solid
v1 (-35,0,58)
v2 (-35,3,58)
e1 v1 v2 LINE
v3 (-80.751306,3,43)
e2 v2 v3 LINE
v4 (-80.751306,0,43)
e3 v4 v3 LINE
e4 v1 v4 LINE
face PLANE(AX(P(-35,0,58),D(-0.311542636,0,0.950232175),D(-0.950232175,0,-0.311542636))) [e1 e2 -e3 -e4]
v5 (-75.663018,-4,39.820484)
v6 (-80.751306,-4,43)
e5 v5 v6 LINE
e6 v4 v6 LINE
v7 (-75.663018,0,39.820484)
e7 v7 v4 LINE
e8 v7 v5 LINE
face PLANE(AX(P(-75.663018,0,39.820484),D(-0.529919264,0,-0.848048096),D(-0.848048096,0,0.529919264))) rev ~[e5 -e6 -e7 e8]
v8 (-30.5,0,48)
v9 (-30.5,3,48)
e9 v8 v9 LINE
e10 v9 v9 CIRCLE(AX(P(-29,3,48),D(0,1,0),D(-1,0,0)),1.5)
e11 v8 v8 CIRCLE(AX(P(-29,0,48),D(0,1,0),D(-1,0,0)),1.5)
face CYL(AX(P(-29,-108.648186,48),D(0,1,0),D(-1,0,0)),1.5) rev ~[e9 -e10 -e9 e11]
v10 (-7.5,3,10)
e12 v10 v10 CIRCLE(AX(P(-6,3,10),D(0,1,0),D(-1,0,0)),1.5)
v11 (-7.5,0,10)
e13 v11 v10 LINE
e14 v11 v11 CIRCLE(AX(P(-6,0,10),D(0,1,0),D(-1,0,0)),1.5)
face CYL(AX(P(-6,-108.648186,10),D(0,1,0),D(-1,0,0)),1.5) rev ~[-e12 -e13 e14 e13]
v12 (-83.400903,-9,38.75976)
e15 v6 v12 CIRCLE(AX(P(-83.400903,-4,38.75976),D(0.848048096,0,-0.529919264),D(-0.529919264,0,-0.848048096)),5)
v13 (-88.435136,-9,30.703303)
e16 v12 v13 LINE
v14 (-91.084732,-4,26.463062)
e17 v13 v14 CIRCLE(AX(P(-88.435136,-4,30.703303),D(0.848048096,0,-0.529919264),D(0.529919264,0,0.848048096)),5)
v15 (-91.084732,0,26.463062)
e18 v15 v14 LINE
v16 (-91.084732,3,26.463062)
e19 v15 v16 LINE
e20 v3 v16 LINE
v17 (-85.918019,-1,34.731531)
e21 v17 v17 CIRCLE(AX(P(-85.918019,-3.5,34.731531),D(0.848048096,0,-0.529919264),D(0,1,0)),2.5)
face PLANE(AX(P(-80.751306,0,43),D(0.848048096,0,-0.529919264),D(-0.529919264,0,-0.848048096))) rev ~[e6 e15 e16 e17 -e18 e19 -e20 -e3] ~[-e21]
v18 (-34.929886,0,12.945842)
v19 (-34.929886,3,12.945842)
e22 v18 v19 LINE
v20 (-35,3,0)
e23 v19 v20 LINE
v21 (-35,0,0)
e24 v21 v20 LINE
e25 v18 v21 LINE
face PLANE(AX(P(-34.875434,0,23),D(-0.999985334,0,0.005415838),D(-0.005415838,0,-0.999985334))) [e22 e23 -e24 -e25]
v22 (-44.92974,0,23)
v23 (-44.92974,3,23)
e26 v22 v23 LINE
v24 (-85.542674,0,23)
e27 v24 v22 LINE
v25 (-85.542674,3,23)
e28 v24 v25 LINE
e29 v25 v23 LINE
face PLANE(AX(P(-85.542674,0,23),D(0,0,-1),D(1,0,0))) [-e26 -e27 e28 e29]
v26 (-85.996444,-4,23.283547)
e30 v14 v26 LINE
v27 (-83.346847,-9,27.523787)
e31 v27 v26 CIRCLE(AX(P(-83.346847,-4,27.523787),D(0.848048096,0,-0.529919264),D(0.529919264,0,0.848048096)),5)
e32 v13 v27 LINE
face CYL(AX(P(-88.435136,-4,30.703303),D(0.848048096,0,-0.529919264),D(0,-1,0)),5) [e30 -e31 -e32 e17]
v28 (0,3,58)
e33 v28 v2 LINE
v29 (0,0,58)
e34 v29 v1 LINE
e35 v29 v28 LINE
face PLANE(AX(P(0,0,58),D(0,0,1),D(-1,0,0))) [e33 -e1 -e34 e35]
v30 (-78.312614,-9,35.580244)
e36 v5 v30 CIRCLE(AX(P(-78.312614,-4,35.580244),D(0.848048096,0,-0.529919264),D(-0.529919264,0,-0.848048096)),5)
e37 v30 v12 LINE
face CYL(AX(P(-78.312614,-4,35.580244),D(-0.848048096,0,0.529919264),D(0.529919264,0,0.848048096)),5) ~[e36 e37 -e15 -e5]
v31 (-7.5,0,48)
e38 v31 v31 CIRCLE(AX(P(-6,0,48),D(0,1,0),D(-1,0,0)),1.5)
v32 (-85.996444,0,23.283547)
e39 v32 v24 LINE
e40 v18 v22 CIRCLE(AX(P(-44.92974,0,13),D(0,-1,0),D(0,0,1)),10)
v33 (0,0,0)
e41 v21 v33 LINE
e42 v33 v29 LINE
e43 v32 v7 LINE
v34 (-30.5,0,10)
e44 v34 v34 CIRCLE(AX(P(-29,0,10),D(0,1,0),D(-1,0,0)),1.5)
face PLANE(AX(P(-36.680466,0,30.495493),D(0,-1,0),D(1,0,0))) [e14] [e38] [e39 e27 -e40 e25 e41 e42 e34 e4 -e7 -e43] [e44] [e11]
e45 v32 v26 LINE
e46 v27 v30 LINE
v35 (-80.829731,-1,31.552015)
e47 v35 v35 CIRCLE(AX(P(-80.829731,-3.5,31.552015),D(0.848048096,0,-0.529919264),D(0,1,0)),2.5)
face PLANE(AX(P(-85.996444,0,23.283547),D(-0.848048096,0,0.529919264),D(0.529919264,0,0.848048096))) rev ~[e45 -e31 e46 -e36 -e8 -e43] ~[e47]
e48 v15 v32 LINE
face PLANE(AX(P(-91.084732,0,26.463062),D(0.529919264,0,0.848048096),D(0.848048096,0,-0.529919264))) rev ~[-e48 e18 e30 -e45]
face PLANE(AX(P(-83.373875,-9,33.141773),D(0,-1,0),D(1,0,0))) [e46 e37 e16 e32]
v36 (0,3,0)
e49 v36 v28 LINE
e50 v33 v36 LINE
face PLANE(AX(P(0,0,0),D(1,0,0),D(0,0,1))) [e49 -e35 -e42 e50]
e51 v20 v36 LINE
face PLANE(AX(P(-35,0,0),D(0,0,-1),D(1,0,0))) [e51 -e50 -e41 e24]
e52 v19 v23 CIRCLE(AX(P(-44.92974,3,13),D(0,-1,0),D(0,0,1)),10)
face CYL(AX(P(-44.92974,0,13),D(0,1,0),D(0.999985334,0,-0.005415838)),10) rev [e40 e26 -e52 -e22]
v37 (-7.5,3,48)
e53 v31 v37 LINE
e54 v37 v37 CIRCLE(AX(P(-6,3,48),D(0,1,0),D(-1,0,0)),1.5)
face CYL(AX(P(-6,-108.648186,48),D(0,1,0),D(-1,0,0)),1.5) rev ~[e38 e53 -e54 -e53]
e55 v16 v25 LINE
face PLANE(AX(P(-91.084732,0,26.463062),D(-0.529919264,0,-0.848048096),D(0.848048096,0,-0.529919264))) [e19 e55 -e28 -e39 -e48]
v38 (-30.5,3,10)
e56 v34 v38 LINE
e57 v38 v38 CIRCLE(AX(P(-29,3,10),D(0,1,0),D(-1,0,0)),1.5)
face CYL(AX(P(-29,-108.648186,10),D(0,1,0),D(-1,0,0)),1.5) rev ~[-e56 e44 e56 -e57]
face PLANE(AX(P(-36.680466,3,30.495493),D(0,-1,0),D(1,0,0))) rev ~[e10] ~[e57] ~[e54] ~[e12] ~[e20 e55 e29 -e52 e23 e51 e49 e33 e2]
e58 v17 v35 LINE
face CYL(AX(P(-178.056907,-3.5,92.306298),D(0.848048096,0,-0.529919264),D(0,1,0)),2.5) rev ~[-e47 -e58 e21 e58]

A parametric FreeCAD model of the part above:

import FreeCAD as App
import Part
import Sketcher
from FreeCAD import Vector
Q = App.Units.Quantity


def edges_at(feature, points):
    """Names of the edges that pass closest to the given points."""
    edges = feature.Shape.Edges
    near = lambda p: min(range(len(edges)), key=lambda i: edges[i].distToShape(Part.Vertex(*p))[0])
    return sorted({f"Edge{near(p) + 1}" for p in points})


def add_polygon(sketch, points):
    """Adds a closed chain of lines whose ends are joined by coincident constraints."""
    first, n = sketch.GeometryCount, len(points)
    for a, b in zip(points, points[1:] + points[:1]):
        sketch.addGeometry(Part.LineSegment(App.Vector(*a, 0), App.Vector(*b, 0)), False)
    for i in range(n):
        sketch.addConstraint(Sketcher.Constraint("Coincident", first + i, 2, first + (i + 1) % n, 1))

doc = App.newDocument("Part")
body = doc.addObject("PartDesign::Body", "Body")

# Sketch on XZ plane
sketch1 = doc.addObject("Sketcher::SketchObject", "Sketch")
body.addObject(sketch1)
sketch1.AttachmentSupport = (doc.XZ_Plane, [""])
sketch1.MapMode = "FlatFace"
add_polygon(sketch1, [(-35, 0), (0, 0), (0, 58), (-35, 58), (-81, 43), (-91, 26), (-86, 23), (-35, 23)])  # lines 0-7
sketch1.addConstraint([
    Sketcher.Constraint("Horizontal", 0),
    Sketcher.Constraint("Vertical", 1),
    Sketcher.Constraint("Horizontal", 2),
    Sketcher.Constraint("Horizontal", 6),
    Sketcher.Constraint("Coincident", 0, 2, -1, 1),
    Sketcher.Constraint("Perpendicular", 4, 5),
    Sketcher.Constraint("Vertical", 2, 2, 7, 2),
    Sketcher.Constraint("DistanceX", 0, 1, 0, 2, 35.0),
    Sketcher.Constraint("DistanceY", 1, 1, 1, 2, 58.0),
    Sketcher.Constraint("Angle", 4, Q("-122 deg")),
    Sketcher.Constraint("DistanceY", -1, 1, 3, 2, 43.0),
    Sketcher.Constraint("DistanceY", -1, 1, 5, 2, 23.0),
    Sketcher.Constraint("Distance", 4, 19.5),
    Sketcher.Constraint("DistanceX", 6, 1, 6, 2, 50.66724),
    Sketcher.Constraint("Distance", 3, 48.147503),
])
pad1 = doc.addObject("PartDesign::Pad", "Pad")
body.addObject(pad1)
pad1.Profile = sketch1
pad1.Length = 3
pad1.Reversed = True

# Sketch on XZ plane
sketch2 = doc.addObject("Sketcher::SketchObject", "Sketch001")
body.addObject(sketch2)
sketch2.AttachmentSupport = (doc.XZ_Plane, [""])
sketch2.MapMode = "FlatFace"
add_polygon(sketch2, [(-76, 40), (-81, 43), (-91, 26), (-86, 23)])  # lines 0-3
sketch2.addConstraint([
    Sketcher.Constraint("Perpendicular", 0, 1),
    Sketcher.Constraint("Perpendicular", 1, 2),
    Sketcher.Constraint("Perpendicular", 2, 3),
    Sketcher.Constraint("Angle", 0, Q("148 deg")),
    Sketcher.Constraint("Distance", 0, 6.0),
    Sketcher.Constraint("DistanceY", -1, 1, 0, 2, 43.0),
    Sketcher.Constraint("Distance", 1, 19.5),
    Sketcher.Constraint("DistanceX", 0, 2, -1, 1, 80.751306),
])
pad2 = doc.addObject("PartDesign::Pad", "Pad001")
body.addObject(pad2)
pad2.Profile = sketch2
pad2.Length = 9
doc.recompute()

fillet = doc.addObject("PartDesign::Fillet", "Fillet")
body.addObject(fillet)
fillet.Base = (pad2, edges_at(pad2, [(-78.207, -9, 41.41), (-88.541, -9, 24.873)]))
fillet.Radius = 5

# Sketch on XZ plane
sketch3 = doc.addObject("Sketcher::SketchObject", "Sketch002")
body.addObject(sketch3)
sketch3.AttachmentSupport = (doc.XZ_Plane, [""])
sketch3.MapMode = "FlatFace"
sketch3.addGeometry([
    Part.Circle(Vector(-29, 48, 0), Vector(0, 0, 1), 1.5),
    Part.Circle(Vector(-6, 48, 0), Vector(0, 0, 1), 1.5),
    Part.Circle(Vector(-6, 10, 0), Vector(0, 0, 1), 1.5),
    Part.Circle(Vector(-29, 10, 0), Vector(0, 0, 1), 1.5),
], False)
sketch3.addConstraint([
    Sketcher.Constraint("Equal", 0, 1),
    Sketcher.Constraint("Equal", 1, 2),
    Sketcher.Constraint("Equal", 2, 3),
    Sketcher.Constraint("Horizontal", 0, 3, 1, 3),
    Sketcher.Constraint("Horizontal", 2, 3, 3, 3),
    Sketcher.Constraint("Vertical", 1, 3, 2, 3),
    Sketcher.Constraint("Vertical", 0, 3, 3, 3),
    Sketcher.Constraint("Diameter", 0, 3.0),
    Sketcher.Constraint("DistanceX", 0, 3, -1, 1, 29.0),
    Sketcher.Constraint("DistanceY", -1, 1, 0, 3, 48.0),
    Sketcher.Constraint("DistanceX", 1, 3, -1, 1, 6.0),
    Sketcher.Constraint("DistanceY", -1, 1, 2, 3, 10.0),
])
doc.recompute()
hole = doc.addObject("PartDesign::Hole", "Hole")
body.addObject(hole)
hole.Profile = sketch3
hole.ThreadType = "None"
hole.Diameter = 3
hole.DepthType = "ThroughAll"

# Sketch on an angled plane
sketch4 = doc.addObject("Sketcher::SketchObject", "Sketch003")
body.addObject(sketch4)
sketch4.Placement = App.Placement(Vector(-77.399247, 0, 48.364417), App.Rotation(Vector(0, -1, 0), Vector(0.529919264, 0, 0.848048096), Vector(-0.848048096, 0, 0.529919264), "ZXY"))
sketch4.addGeometry(Part.Circle(Vector(3.5, -16.1, 0), Vector(0, 0, 1), 2.5), False)
sketch4.addConstraint([
    Sketcher.Constraint("Diameter", 0, 5.0),
    Sketcher.Constraint("DistanceX", -1, 1, 0, 3, 3.5),
    Sketcher.Constraint("DistanceY", 0, 3, -1, 1, 16.075605),
])
doc.recompute()
hole2 = doc.addObject("PartDesign::Hole", "Hole001")
body.addObject(hole2)
hole2.Profile = sketch4
hole2.ThreadType = "None"
hole2.Diameter = 5
hole2.DepthType = "ThroughAll"
doc.recompute()

fillet2 = doc.addObject("PartDesign::Fillet", "Fillet001")
body.addObject(fillet2)
fillet2.Base = (hole2, edges_at(hole2, [(-34.875, 1.5, 23)]))
fillet2.Radius = 10

doc.recompute()
